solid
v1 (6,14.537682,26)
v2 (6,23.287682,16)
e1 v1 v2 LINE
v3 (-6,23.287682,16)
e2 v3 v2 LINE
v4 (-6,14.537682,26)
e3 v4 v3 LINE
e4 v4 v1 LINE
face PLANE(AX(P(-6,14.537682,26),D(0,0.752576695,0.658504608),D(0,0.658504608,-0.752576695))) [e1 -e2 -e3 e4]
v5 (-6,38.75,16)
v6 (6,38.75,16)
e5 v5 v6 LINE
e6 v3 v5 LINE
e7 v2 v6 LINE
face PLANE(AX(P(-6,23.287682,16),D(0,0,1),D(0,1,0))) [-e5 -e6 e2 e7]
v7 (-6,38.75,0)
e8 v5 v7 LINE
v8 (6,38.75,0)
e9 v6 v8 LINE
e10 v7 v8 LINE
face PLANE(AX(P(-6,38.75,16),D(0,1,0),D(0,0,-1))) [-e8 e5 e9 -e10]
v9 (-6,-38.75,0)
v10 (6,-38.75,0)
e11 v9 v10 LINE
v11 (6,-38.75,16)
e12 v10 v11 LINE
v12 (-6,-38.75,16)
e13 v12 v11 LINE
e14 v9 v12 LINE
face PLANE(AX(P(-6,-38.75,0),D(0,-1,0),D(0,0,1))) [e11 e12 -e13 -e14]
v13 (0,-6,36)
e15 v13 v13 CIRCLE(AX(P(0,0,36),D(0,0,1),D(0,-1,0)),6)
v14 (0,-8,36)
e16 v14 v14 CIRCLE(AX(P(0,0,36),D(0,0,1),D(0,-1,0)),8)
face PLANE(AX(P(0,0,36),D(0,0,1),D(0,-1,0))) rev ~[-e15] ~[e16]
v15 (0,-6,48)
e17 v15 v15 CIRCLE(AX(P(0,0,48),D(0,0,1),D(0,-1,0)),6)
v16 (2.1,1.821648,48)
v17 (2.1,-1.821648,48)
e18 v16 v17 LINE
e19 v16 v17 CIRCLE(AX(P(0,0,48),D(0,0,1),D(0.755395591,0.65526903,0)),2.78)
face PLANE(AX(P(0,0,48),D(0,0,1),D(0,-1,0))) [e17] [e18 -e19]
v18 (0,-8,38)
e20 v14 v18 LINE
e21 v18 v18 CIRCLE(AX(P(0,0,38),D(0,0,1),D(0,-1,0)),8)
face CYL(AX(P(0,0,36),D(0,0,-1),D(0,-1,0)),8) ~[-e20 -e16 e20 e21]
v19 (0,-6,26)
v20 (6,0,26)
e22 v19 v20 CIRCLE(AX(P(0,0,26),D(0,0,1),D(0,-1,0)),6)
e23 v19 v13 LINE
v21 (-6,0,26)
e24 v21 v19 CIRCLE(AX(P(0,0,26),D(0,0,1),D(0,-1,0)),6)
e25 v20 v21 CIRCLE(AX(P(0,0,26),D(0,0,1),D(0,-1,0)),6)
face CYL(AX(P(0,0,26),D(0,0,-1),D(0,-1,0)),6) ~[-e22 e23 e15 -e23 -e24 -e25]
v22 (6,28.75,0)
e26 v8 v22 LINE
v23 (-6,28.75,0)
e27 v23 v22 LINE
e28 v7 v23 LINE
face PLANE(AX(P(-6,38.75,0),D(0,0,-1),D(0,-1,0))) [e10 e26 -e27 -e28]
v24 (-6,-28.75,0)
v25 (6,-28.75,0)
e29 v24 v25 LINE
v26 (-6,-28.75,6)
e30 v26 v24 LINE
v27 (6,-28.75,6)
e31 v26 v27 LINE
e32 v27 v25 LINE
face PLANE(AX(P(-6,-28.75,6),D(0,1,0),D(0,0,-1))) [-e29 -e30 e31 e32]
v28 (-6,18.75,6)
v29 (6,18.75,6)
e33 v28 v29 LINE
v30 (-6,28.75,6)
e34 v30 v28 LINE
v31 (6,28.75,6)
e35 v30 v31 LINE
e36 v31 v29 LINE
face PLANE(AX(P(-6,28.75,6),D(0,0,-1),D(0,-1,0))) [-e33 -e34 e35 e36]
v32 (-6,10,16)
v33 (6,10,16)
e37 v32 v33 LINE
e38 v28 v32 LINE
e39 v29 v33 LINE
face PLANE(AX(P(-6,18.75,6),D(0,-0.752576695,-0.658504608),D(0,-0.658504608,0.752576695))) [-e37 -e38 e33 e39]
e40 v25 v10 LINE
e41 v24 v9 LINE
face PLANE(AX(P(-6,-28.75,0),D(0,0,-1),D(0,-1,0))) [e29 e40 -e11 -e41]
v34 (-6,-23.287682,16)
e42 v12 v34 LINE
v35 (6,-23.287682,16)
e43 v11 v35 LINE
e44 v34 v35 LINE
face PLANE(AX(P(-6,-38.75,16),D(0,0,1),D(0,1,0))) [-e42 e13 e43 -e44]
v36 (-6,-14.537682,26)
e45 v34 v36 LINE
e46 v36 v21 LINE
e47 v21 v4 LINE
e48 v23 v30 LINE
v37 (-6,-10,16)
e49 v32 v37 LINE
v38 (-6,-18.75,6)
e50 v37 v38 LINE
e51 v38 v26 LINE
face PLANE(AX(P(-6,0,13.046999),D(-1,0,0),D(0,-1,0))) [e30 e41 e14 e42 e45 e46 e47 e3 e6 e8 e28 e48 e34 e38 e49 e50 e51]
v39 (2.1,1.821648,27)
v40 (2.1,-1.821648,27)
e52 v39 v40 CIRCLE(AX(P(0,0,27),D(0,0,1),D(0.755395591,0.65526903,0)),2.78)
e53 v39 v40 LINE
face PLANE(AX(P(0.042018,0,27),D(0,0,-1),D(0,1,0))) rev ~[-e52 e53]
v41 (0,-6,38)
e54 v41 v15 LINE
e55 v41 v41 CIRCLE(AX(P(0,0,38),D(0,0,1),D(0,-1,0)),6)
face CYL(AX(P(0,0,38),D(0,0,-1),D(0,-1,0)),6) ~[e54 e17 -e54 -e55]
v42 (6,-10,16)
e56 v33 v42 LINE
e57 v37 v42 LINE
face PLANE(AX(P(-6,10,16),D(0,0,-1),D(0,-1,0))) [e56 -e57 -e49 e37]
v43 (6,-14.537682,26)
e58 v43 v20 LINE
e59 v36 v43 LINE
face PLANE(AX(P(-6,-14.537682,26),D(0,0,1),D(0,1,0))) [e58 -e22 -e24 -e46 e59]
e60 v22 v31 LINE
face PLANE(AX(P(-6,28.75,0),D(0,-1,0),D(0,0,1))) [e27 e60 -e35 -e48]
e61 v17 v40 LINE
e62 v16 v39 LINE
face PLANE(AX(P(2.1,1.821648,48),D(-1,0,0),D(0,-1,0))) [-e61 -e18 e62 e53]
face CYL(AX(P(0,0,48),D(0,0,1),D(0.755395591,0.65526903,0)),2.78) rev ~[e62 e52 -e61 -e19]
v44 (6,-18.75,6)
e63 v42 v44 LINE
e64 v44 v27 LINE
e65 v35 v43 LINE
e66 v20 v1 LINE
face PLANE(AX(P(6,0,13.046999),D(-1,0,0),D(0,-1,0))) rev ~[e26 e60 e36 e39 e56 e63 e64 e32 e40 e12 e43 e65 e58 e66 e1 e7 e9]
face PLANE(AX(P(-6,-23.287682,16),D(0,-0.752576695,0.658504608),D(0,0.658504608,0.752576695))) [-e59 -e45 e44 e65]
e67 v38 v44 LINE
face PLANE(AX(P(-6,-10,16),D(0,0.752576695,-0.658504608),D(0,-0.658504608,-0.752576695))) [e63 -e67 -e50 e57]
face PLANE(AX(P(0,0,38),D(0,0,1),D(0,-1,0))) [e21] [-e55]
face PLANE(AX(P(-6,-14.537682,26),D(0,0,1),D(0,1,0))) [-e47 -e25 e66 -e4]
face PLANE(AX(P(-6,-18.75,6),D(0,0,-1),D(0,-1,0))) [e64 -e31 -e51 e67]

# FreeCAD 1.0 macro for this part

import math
import FreeCAD as App
import Part
import Sketcher

V = App.Vector
Q = App.Units.Quantity

doc = App.newDocument("Part")
body = doc.addObject("PartDesign::Body", "Body")

# Sketch on YZ plane
sketch1 = body.newObject("Sketcher::SketchObject", "Sketch")
sketch1.AttachmentSupport = (doc.getObject("YZ_Plane"), [""])
sketch1.MapMode = "FlatFace"
sketch1.AttachmentOffset = App.Placement(V(0, 0, -6), App.Rotation())
sketch1.addGeometry([
    Part.LineSegment(V(-38.75, 16, 0), V(-38.75, 0, 0)),  # 0
    Part.LineSegment(V(-38.75, 0, 0), V(-28.75, 0, 0)),  # 1
    Part.LineSegment(V(-28.75, 0, 0), V(-28.75, 6, 0)),  # 2
    Part.LineSegment(V(-28.75, 6, 0), V(-18.75, 6, 0)),  # 3
    Part.LineSegment(V(-18.75, 6, 0), V(-10, 16, 0)),  # 4
    Part.LineSegment(V(-10, 16, 0), V(10, 16, 0)),  # 5
    Part.LineSegment(V(10, 16, 0), V(18.75, 6, 0)),  # 6
    Part.LineSegment(V(18.75, 6, 0), V(28.75, 6, 0)),  # 7
    Part.LineSegment(V(28.75, 6, 0), V(28.75, 0, 0)),  # 8
    Part.LineSegment(V(28.75, 0, 0), V(38.75, 0, 0)),  # 9
    Part.LineSegment(V(38.75, 0, 0), V(38.75, 16, 0)),  # 10
    Part.LineSegment(V(38.75, 16, 0), V(23.287682, 16, 0)),  # 11
    Part.LineSegment(V(23.287682, 16, 0), V(14.537682, 26, 0)),  # 12
    Part.LineSegment(V(14.537682, 26, 0), V(-14.537682, 26, 0)),  # 13
    Part.LineSegment(V(-14.537682, 26, 0), V(-23.287682, 16, 0)),  # 14
    Part.LineSegment(V(-23.287682, 16, 0), V(-38.75, 16, 0)),  # 15
], False)
sketch1.addConstraint([
    Sketcher.Constraint("Coincident", 0, 2, 1, 1),
    Sketcher.Constraint("Coincident", 1, 2, 2, 1),
    Sketcher.Constraint("Coincident", 2, 2, 3, 1),
    Sketcher.Constraint("Coincident", 3, 2, 4, 1),
    Sketcher.Constraint("Coincident", 4, 2, 5, 1),
    Sketcher.Constraint("Coincident", 5, 2, 6, 1),
    Sketcher.Constraint("Coincident", 6, 2, 7, 1),
    Sketcher.Constraint("Coincident", 7, 2, 8, 1),
    Sketcher.Constraint("Coincident", 8, 2, 9, 1),
    Sketcher.Constraint("Coincident", 9, 2, 10, 1),
    Sketcher.Constraint("Coincident", 10, 2, 11, 1),
    Sketcher.Constraint("Coincident", 11, 2, 12, 1),
    Sketcher.Constraint("Coincident", 12, 2, 13, 1),
    Sketcher.Constraint("Coincident", 13, 2, 14, 1),
    Sketcher.Constraint("Coincident", 14, 2, 15, 1),
    Sketcher.Constraint("Coincident", 15, 2, 0, 1),
    Sketcher.Constraint("Vertical", 0),
    Sketcher.Constraint("Horizontal", 1),
    Sketcher.Constraint("Vertical", 2),
    Sketcher.Constraint("Horizontal", 3),
    Sketcher.Constraint("Horizontal", 5),
    Sketcher.Constraint("Horizontal", 7),
    Sketcher.Constraint("Vertical", 8),
    Sketcher.Constraint("Horizontal", 9),
    Sketcher.Constraint("Vertical", 10),
    Sketcher.Constraint("Horizontal", 11),
    Sketcher.Constraint("Horizontal", 13),
    Sketcher.Constraint("Horizontal", 15),
    Sketcher.Constraint("Symmetric", 1, 2, 8, 2, -1, 1),
    Sketcher.Constraint("Symmetric", 3, 2, 6, 2, -2),
    Sketcher.Constraint("Symmetric", 0, 2, 9, 2, -2),
    Sketcher.Constraint("Symmetric", 11, 2, 14, 2, -2),
    Sketcher.Constraint("Parallel", 6, 12),
    Sketcher.Constraint("Parallel", 4, 14),
    Sketcher.Constraint("Horizontal", 5, 2, 10, 2),
    Sketcher.Constraint("Equal", 1, 3),
    Sketcher.Constraint("Equal", 4, 6),
    Sketcher.Constraint("Equal", 6, 12),
    Sketcher.Constraint("DistanceX", 1, 1, 1, 2, Q("10 mm")),
    Sketcher.Constraint("DistanceX", 5, 1, 5, 2, Q("20 mm")),
    Sketcher.Constraint("DistanceY", 0, 2, 0, 1, Q("16 mm")),
    Sketcher.Constraint("DistanceY", 2, 1, 2, 2, Q("6 mm")),
    Sketcher.Constraint("DistanceX", 3, 2, 6, 2, Q("37.5 mm")),
    Sketcher.Constraint("DistanceX", 11, 2, 11, 1, Q("15.462318 mm")),
])
pad1 = body.newObject("PartDesign::Pad", "Pad")
pad1.Profile = sketch1
pad1.Length = 12

# Sketch on XY plane
sketch2 = body.newObject("Sketcher::SketchObject", "Sketch001")
sketch2.AttachmentSupport = (doc.getObject("XY_Plane"), [""])
sketch2.MapMode = "FlatFace"
sketch2.AttachmentOffset = App.Placement(V(0, 0, 26), App.Rotation())
sketch2.addGeometry(Part.Circle(V(0, 0, 0), V(0, 0, 1), 6), False)
sketch2.addConstraint([
    Sketcher.Constraint("Coincident", 0, 3, -1, 1),
    Sketcher.Constraint("Diameter", 0, Q("12 mm")),
])
pad2 = body.newObject("PartDesign::Pad", "Pad001")
pad2.Profile = sketch2
pad2.Length = 10

# Sketch on XY plane
sketch3 = body.newObject("Sketcher::SketchObject", "Sketch002")
sketch3.AttachmentSupport = (doc.getObject("XY_Plane"), [""])
sketch3.MapMode = "FlatFace"
sketch3.AttachmentOffset = App.Placement(V(0, 0, 36), App.Rotation())
sketch3.addGeometry(Part.Circle(V(0, 0, 0), V(0, 0, 1), 8), False)
sketch3.addConstraint([
    Sketcher.Constraint("Coincident", 0, 3, -1, 1),
    Sketcher.Constraint("Diameter", 0, Q("16 mm")),
])
pad3 = body.newObject("PartDesign::Pad", "Pad002")
pad3.Profile = sketch3
pad3.Length = 2

# Sketch on XY plane
sketch4 = body.newObject("Sketcher::SketchObject", "Sketch003")
sketch4.AttachmentSupport = (doc.getObject("XY_Plane"), [""])
sketch4.MapMode = "FlatFace"
sketch4.AttachmentOffset = App.Placement(V(0, 0, 38), App.Rotation())
sketch4.addGeometry(Part.Circle(V(0, 0, 0), V(0, 0, 1), 6), False)
sketch4.addConstraint([
    Sketcher.Constraint("Coincident", 0, 3, -1, 1),
    Sketcher.Constraint("Diameter", 0, Q("12 mm")),
])
pad4 = body.newObject("PartDesign::Pad", "Pad003")
pad4.Profile = sketch4
pad4.Length = 10

# Sketch on XY plane
sketch5 = body.newObject("Sketcher::SketchObject", "Sketch004")
sketch5.AttachmentSupport = (doc.getObject("XY_Plane"), [""])
sketch5.MapMode = "FlatFace"
sketch5.AttachmentOffset = App.Placement(V(0, 0, 48), App.Rotation())
sketch5.addGeometry([
    Part.LineSegment(V(2.1, -1.821648, 0), V(2.1, 1.821648, 0)),
    Part.ArcOfCircle(Part.Circle(V(0, 0, 0), V(0, 0, 1), 2.78), math.radians(40.940052), math.radians(319.059948)),
], False)
sketch5.addConstraint([
    Sketcher.Constraint("Coincident", 0, 1, 1, 2),
    Sketcher.Constraint("Coincident", 1, 1, 0, 2),
    Sketcher.Constraint("Vertical", 0),
    Sketcher.Constraint("Coincident", 1, 3, -1, 1),
    Sketcher.Constraint("Radius", 1, Q("2.78 mm")),
    Sketcher.Constraint("DistanceX", -1, 1, 0, 1, Q("2.1 mm")),
])
pocket1 = body.newObject("PartDesign::Pocket", "Pocket")
pocket1.Profile = sketch5
pocket1.Length = 21

doc.recompute()
